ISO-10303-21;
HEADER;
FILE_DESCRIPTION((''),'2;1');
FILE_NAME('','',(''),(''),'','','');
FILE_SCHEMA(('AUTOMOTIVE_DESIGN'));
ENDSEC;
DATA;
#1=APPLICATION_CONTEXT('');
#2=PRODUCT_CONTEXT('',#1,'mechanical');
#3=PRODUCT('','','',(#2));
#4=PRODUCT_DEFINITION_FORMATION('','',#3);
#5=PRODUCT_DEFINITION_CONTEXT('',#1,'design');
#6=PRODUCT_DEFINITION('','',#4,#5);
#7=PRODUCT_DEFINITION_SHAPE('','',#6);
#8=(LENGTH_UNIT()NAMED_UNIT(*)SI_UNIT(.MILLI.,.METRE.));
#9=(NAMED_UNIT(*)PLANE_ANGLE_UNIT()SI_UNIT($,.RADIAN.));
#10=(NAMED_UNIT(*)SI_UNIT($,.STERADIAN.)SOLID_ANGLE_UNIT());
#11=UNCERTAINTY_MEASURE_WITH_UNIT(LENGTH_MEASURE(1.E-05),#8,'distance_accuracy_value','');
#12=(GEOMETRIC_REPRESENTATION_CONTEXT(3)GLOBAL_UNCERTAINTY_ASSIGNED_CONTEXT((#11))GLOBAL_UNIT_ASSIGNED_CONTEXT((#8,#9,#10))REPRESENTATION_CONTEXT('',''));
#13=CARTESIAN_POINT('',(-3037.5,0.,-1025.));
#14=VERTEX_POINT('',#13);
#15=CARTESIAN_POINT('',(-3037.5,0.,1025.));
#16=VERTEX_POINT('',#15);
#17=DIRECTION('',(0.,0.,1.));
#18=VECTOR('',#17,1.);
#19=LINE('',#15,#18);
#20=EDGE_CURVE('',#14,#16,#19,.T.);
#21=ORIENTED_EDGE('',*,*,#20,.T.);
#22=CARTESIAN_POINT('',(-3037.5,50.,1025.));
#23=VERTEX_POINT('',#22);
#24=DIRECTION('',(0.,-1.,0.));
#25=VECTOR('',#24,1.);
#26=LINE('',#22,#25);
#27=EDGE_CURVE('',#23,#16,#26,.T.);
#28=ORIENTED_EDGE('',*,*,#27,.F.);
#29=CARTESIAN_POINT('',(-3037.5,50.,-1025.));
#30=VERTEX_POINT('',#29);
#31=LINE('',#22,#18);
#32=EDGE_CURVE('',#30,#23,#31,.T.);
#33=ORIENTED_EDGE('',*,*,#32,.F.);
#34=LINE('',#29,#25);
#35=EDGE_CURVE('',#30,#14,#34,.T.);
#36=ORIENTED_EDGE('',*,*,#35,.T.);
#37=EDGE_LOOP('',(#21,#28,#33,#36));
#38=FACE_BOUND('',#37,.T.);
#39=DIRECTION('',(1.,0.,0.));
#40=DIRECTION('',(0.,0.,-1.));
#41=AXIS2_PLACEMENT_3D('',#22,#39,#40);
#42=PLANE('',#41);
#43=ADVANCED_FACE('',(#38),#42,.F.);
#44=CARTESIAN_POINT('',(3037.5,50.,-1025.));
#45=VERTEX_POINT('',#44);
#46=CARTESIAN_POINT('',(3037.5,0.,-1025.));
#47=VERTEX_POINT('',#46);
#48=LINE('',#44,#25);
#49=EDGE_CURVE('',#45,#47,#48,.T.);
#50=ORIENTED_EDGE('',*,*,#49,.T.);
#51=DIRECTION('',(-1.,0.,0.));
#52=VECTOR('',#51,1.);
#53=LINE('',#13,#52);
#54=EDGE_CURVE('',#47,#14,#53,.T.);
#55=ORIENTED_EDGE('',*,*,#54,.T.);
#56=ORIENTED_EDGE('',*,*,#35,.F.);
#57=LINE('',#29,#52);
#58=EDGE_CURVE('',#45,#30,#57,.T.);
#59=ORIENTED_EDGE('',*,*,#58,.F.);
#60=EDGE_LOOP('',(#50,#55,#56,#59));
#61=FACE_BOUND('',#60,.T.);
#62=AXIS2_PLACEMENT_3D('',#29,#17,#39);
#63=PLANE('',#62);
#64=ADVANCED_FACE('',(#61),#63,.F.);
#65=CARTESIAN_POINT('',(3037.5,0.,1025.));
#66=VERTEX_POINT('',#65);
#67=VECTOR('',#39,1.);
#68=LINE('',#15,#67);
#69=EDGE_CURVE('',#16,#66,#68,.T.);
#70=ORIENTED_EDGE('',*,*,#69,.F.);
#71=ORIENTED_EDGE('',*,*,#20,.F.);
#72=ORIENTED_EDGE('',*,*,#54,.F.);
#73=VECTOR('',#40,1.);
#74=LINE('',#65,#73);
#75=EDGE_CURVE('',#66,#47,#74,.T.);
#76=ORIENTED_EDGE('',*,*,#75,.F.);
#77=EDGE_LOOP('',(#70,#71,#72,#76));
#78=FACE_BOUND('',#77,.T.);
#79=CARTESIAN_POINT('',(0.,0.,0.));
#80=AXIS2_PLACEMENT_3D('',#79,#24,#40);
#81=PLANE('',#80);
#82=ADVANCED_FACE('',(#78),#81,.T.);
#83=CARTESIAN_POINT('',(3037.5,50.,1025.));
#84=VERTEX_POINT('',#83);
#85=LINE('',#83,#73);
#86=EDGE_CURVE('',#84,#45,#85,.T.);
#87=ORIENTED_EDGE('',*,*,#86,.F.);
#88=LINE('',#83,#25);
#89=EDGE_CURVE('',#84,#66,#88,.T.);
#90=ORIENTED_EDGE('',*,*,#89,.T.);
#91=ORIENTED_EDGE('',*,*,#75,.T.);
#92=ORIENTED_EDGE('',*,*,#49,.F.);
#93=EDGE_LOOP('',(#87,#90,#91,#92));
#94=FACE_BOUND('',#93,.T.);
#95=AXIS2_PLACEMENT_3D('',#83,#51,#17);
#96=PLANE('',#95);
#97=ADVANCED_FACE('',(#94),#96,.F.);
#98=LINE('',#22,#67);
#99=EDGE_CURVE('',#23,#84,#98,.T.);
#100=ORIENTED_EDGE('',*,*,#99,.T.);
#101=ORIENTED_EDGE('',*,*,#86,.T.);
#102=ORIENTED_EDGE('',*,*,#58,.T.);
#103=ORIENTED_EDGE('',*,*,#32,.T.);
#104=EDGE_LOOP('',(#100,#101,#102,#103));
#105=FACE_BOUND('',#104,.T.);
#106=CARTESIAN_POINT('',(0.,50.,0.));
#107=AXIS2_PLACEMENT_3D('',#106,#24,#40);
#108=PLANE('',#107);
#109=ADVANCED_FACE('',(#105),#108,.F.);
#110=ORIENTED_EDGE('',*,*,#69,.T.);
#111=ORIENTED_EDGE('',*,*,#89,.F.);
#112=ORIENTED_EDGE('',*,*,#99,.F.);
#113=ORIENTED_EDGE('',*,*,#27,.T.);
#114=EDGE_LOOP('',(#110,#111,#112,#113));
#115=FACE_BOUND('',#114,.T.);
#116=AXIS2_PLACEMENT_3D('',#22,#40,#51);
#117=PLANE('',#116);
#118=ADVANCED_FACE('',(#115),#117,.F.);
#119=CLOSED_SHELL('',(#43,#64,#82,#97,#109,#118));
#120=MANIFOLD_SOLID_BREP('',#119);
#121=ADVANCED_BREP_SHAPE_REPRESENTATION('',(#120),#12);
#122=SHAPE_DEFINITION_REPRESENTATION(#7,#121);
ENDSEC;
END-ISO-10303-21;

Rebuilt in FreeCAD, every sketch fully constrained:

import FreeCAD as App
import Part
import Sketcher

V = App.Vector


def add_polygon(sketch, points):
    """Adds a closed chain of lines whose ends are joined by coincident constraints."""
    first, n = sketch.GeometryCount, len(points)
    for a, b in zip(points, points[1:] + points[:1]):
        sketch.addGeometry(Part.LineSegment(App.Vector(*a, 0), App.Vector(*b, 0)), False)
    for i in range(n):
        sketch.addConstraint(Sketcher.Constraint("Coincident", first + i, 2, first + (i + 1) % n, 1))

doc = App.newDocument("Part")
params = doc.addObject("Spreadsheet::Sheet", "Params")
for row, (alias, value) in enumerate([
    ("sketch1_width", "6075 mm"),
    ("sketch1_height", "2050 mm"),
    ("pad1_length", "50 mm"),
], start=1):
    params.set(f"A{row}", alias)
    params.set(f"B{row}", "=" + value)
    params.setAlias(f"B{row}", alias)

body = doc.addObject("PartDesign::Body", "Body")

sketch1 = doc.addObject("Sketcher::SketchObject", "Sketch")
body.addObject(sketch1)
sketch1.AttachmentSupport = (doc.XZ_Plane, [""])
sketch1.MapMode = "FlatFace"
add_polygon(sketch1, [(-3038, -1025), (-3038, 1025), (3038, 1025), (3038, -1025)])
sketch1.addConstraint([
    Sketcher.Constraint("Vertical", 0),
    Sketcher.Constraint("Horizontal", 1),
    Sketcher.Constraint("Vertical", 2),
    Sketcher.Constraint("Horizontal", 3),
    Sketcher.Constraint("Symmetric", 0, 2, 2, 2, -1, 1),
    Sketcher.Constraint("DistanceX", 1, 1, 1, 2, 6075.0),
    Sketcher.Constraint("DistanceY", 0, 1, 0, 2, 2050.0),
])
sketch1.setExpression("Constraints[9]", "Params.sketch1_width")
sketch1.setExpression("Constraints[10]", "Params.sketch1_height")
pad1 = doc.addObject("PartDesign::Pad", "Pad")
body.addObject(pad1)
pad1.Profile = sketch1
pad1.setExpression("Length", "Params.pad1_length")
pad1.Reversed = True

doc.recompute()
